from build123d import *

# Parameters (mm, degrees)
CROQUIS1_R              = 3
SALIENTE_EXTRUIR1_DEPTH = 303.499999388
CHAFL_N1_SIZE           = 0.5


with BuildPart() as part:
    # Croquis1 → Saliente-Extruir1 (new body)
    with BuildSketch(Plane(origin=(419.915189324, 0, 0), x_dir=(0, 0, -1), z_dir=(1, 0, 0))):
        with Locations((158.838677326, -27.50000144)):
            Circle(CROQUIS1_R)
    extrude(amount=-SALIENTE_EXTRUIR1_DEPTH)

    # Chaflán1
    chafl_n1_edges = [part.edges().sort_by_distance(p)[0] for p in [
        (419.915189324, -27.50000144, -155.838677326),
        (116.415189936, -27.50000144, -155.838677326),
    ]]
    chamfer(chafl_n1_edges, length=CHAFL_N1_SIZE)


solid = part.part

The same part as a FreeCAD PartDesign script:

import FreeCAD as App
import Part
import Sketcher


def edges_at(feature, points):
    """Names of the edges that pass closest to the given points."""
    edges = feature.Shape.Edges
    near = lambda p: min(range(len(edges)), key=lambda i: edges[i].distToShape(Part.Vertex(*p))[0])
    return sorted({f"Edge{near(p) + 1}" for p in points})

doc = App.newDocument("Part")
body = doc.addObject("PartDesign::Body", "Body")

# Sketch on YZ plane
sketch1 = doc.addObject("Sketcher::SketchObject", "Sketch")
body.addObject(sketch1)
sketch1.AttachmentSupport = (doc.YZ_Plane, [""])
sketch1.MapMode = "FlatFace"
sketch1.AttachmentOffset = App.Placement(App.Vector(0, 0, 419.915189), App.Rotation())
sketch1.addGeometry(Part.Circle(App.Vector(-27.5, -158.8, 0), App.Vector(0, 0, 1), 3), False)
sketch1.addConstraint([
    Sketcher.Constraint("Diameter", 0, 6.0),
    Sketcher.Constraint("DistanceX", 0, 3, -1, 1, 27.500001),
    Sketcher.Constraint("DistanceY", 0, 3, -1, 1, 158.838677),
])
pad1 = doc.addObject("PartDesign::Pad", "Pad")
body.addObject(pad1)
pad1.Profile = sketch1
pad1.Length = 303.499999
pad1.Reversed = True
doc.recompute()

chamfer = doc.addObject("PartDesign::Chamfer", "Chamfer")
body.addObject(chamfer)
chamfer.Base = (pad1, edges_at(pad1, [(419.915, -27.5, -155.839), (116.415, -27.5, -155.839)]))
chamfer.Size = 0.5

doc.recompute()
